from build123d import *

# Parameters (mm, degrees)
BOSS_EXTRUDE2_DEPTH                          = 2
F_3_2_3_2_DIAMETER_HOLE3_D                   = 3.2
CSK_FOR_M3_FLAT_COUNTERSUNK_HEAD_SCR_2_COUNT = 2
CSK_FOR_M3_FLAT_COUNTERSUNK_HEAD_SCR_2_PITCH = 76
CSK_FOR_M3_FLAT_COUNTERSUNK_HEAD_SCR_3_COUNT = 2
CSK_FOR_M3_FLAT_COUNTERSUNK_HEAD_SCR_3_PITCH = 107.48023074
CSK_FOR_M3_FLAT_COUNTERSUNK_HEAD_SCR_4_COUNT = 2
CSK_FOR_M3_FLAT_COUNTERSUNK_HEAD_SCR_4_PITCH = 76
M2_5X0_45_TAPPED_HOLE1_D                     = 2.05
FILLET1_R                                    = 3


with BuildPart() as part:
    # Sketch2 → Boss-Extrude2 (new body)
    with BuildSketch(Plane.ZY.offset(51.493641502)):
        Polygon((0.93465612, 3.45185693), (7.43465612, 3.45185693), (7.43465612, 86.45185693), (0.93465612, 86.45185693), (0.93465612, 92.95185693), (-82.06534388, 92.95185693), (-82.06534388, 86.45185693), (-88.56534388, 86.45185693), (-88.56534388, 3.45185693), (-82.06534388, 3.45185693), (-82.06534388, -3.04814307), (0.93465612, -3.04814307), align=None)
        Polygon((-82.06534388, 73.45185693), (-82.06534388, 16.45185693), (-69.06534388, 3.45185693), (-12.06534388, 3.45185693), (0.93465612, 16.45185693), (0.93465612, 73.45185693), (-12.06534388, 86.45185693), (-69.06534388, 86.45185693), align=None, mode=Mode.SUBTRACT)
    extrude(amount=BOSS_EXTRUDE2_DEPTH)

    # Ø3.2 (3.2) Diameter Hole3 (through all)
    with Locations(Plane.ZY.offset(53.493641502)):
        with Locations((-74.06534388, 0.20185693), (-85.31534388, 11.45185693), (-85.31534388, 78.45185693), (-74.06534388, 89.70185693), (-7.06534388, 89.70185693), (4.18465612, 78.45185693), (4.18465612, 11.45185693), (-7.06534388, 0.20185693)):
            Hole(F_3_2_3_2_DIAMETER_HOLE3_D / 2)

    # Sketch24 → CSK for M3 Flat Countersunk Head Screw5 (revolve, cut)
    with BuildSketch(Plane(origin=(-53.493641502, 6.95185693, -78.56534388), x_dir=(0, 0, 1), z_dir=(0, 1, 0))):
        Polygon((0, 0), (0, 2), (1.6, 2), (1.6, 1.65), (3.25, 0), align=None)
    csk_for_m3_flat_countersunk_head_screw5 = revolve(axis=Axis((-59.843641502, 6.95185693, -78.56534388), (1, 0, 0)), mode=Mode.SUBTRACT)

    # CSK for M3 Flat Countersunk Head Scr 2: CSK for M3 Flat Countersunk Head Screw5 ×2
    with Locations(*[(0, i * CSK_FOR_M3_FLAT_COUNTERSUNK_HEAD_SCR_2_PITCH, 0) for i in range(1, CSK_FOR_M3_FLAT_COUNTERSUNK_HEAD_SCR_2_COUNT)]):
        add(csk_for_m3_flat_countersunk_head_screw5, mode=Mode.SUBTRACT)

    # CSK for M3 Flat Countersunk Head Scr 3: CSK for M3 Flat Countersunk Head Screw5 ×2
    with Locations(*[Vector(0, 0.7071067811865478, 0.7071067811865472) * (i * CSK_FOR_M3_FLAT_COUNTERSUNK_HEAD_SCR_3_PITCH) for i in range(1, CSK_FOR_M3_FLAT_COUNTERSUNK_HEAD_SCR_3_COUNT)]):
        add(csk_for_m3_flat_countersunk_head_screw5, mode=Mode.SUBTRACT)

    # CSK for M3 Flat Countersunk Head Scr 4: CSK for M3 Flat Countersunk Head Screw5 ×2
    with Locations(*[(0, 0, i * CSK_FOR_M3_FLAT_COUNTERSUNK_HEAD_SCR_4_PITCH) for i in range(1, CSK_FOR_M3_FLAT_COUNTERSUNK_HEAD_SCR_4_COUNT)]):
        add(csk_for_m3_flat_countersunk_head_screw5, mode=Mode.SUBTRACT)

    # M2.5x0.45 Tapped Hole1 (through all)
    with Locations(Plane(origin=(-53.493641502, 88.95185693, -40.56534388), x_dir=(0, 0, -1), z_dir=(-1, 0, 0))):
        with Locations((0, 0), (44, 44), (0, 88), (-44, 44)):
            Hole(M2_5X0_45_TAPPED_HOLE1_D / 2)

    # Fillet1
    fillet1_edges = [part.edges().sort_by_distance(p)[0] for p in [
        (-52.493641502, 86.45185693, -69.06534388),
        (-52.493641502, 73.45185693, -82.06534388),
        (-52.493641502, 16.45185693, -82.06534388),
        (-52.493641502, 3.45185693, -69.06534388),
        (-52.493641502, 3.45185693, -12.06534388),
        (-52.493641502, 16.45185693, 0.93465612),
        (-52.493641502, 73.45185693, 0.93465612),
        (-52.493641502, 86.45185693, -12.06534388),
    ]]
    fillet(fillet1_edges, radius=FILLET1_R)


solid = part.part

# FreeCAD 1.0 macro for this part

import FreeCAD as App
import Part
import Sketcher
from FreeCAD import Vector
Q = App.Units.Quantity


def edges_at(feature, points):
    """Names of the edges that pass closest to the given points."""
    edges = feature.Shape.Edges
    near = lambda p: min(range(len(edges)), key=lambda i: edges[i].distToShape(Part.Vertex(*p))[0])
    return sorted({f"Edge{near(p) + 1}" for p in points})

doc = App.newDocument("Part")
body = doc.addObject("PartDesign::Body", "Body")

# Sketch on YZ plane
sketch1 = doc.addObject("Sketcher::SketchObject", "Sketch")
body.addObject(sketch1)
sketch1.AttachmentSupport = (doc.YZ_Plane, [""])
sketch1.MapMode = "FlatFace"
sketch1.AttachmentOffset = App.Placement(Vector(0, 0, -51.493642), App.Rotation())
sketch1.addGeometry([
    Part.LineSegment(Vector(3, 1, 0), Vector(3, 7, 0)),  # 0
    Part.LineSegment(Vector(3, 7, 0), Vector(86, 7, 0)),  # 1
    Part.LineSegment(Vector(86, 7, 0), Vector(86, 1, 0)),  # 2
    Part.LineSegment(Vector(86, 1, 0), Vector(93, 1, 0)),  # 3
    Part.LineSegment(Vector(93, 1, 0), Vector(93, -82, 0)),  # 4
    Part.LineSegment(Vector(93, -82, 0), Vector(86, -82, 0)),  # 5
    Part.LineSegment(Vector(86, -82, 0), Vector(86, -89, 0)),  # 6
    Part.LineSegment(Vector(86, -89, 0), Vector(3, -89, 0)),  # 7
    Part.LineSegment(Vector(3, -89, 0), Vector(3, -82, 0)),  # 8
    Part.LineSegment(Vector(3, -82, 0), Vector(-3, -82, 0)),  # 9
    Part.LineSegment(Vector(-3, -82, 0), Vector(-3, 1, 0)),  # 10
    Part.LineSegment(Vector(-3, 1, 0), Vector(3, 1, 0)),  # 11
    Part.LineSegment(Vector(16, -82, 0), Vector(73, -82, 0)),  # 12
    Part.LineSegment(Vector(73, -82, 0), Vector(86, -69, 0)),  # 13
    Part.LineSegment(Vector(86, -69, 0), Vector(86, -12, 0)),  # 14
    Part.LineSegment(Vector(86, -12, 0), Vector(73, 1, 0)),  # 15
    Part.LineSegment(Vector(73, 1, 0), Vector(16, 1, 0)),  # 16
    Part.LineSegment(Vector(16, 1, 0), Vector(3, -12, 0)),  # 17
    Part.LineSegment(Vector(3, -12, 0), Vector(3, -69, 0)),  # 18
    Part.LineSegment(Vector(3, -69, 0), Vector(16, -82, 0)),  # 19
], False)
sketch1.addConstraint([
    Sketcher.Constraint("Coincident", 0, 2, 1, 1),
    Sketcher.Constraint("Coincident", 1, 2, 2, 1),
    Sketcher.Constraint("Coincident", 2, 2, 3, 1),
    Sketcher.Constraint("Coincident", 3, 2, 4, 1),
    Sketcher.Constraint("Coincident", 4, 2, 5, 1),
    Sketcher.Constraint("Coincident", 5, 2, 6, 1),
    Sketcher.Constraint("Coincident", 6, 2, 7, 1),
    Sketcher.Constraint("Coincident", 7, 2, 8, 1),
    Sketcher.Constraint("Coincident", 8, 2, 9, 1),
    Sketcher.Constraint("Coincident", 9, 2, 10, 1),
    Sketcher.Constraint("Coincident", 10, 2, 11, 1),
    Sketcher.Constraint("Coincident", 11, 2, 0, 1),
    Sketcher.Constraint("Coincident", 12, 2, 13, 1),
    Sketcher.Constraint("Coincident", 13, 2, 14, 1),
    Sketcher.Constraint("Coincident", 14, 2, 15, 1),
    Sketcher.Constraint("Coincident", 15, 2, 16, 1),
    Sketcher.Constraint("Coincident", 16, 2, 17, 1),
    Sketcher.Constraint("Coincident", 17, 2, 18, 1),
    Sketcher.Constraint("Coincident", 18, 2, 19, 1),
    Sketcher.Constraint("Coincident", 19, 2, 12, 1),
    Sketcher.Constraint("Vertical", 0),
    Sketcher.Constraint("Horizontal", 1),
    Sketcher.Constraint("Vertical", 2),
    Sketcher.Constraint("Horizontal", 3),
    Sketcher.Constraint("Vertical", 4),
    Sketcher.Constraint("Horizontal", 5),
    Sketcher.Constraint("Vertical", 6),
    Sketcher.Constraint("Horizontal", 7),
    Sketcher.Constraint("Vertical", 8),
    Sketcher.Constraint("Horizontal", 9),
    Sketcher.Constraint("Vertical", 10),
    Sketcher.Constraint("Horizontal", 11),
    Sketcher.Constraint("Horizontal", 12),
    Sketcher.Constraint("Vertical", 14),
    Sketcher.Constraint("Horizontal", 16),
    Sketcher.Constraint("Vertical", 18),
    Sketcher.Constraint("Perpendicular", 13, 15),
    Sketcher.Constraint("Perpendicular", 15, 17),
    Sketcher.Constraint("Perpendicular", 17, 19),
    Sketcher.Constraint("Horizontal", 5, 2, 8, 2),
    Sketcher.Constraint("Horizontal", 3, 2, 10, 2),
    Sketcher.Constraint("Horizontal", 9, 2, 12, 2),
    Sketcher.Constraint("Horizontal", 11, 2, 15, 2),
    Sketcher.Constraint("Horizontal", 14, 2, 17, 2),
    Sketcher.Constraint("Horizontal", 13, 2, 18, 2),
    Sketcher.Constraint("Vertical", 2, 2, 5, 2),
    Sketcher.Constraint("Vertical", 0, 2, 7, 2),
    Sketcher.Constraint("Vertical", 6, 2, 13, 2),
    Sketcher.Constraint("Vertical", 12, 2, 15, 2),
    Sketcher.Constraint("Vertical", 11, 2, 17, 2),
    Sketcher.Constraint("Vertical", 16, 2, 19, 2),
    Sketcher.Constraint("Equal", 5, 9),
    Sketcher.Constraint("Equal", 11, 0),
    Sketcher.Constraint("Equal", 7, 4),
    Sketcher.Constraint("Equal", 2, 6),
    Sketcher.Constraint("DistanceX", 1, 1, 1, 2, 83.0),
    Sketcher.Constraint("DistanceX", 12, 1, 12, 2, 57.0),
    Sketcher.Constraint("DistanceX", 3, 1, 3, 2, 6.5),
    Sketcher.Constraint("DistanceX", -1, 1, 0, 2, 3.451857),
    Sketcher.Constraint("DistanceY", -1, 1, 0, 2, 7.434656),
])
pad1 = doc.addObject("PartDesign::Pad", "Pad")
body.addObject(pad1)
pad1.Profile = sketch1
pad1.Length = 2
pad1.Reversed = True

# Sketch on YZ plane
sketch2 = doc.addObject("Sketcher::SketchObject", "Sketch001")
body.addObject(sketch2)
sketch2.AttachmentSupport = (doc.YZ_Plane, [""])
sketch2.MapMode = "FlatFace"
sketch2.AttachmentOffset = App.Placement(Vector(0, 0, -53.493642), App.Rotation())
sketch2.addGeometry([
    Part.Circle(Vector(0.2, -74.1, 0), Vector(0, 0, 1), 1.6),  # 0
    Part.Circle(Vector(11.5, -85.3, 0), Vector(0, 0, 1), 1.6),  # 1
    Part.Circle(Vector(78.5, -85.3, 0), Vector(0, 0, 1), 1.6),  # 2
    Part.Circle(Vector(89.7, -74.1, 0), Vector(0, 0, 1), 1.6),  # 3
    Part.Circle(Vector(89.7, -7.1, 0), Vector(0, 0, 1), 1.6),  # 4
    Part.Circle(Vector(78.5, 4.2, 0), Vector(0, 0, 1), 1.6),  # 5
    Part.Circle(Vector(11.5, 4.2, 0), Vector(0, 0, 1), 1.6),  # 6
    Part.Circle(Vector(0.2, -7.1, 0), Vector(0, 0, 1), 1.6),  # 7
], False)
sketch2.addConstraint([
    Sketcher.Constraint("Equal", 0, 1),
    Sketcher.Constraint("Equal", 1, 2),
    Sketcher.Constraint("Equal", 2, 3),
    Sketcher.Constraint("Equal", 3, 4),
    Sketcher.Constraint("Equal", 4, 5),
    Sketcher.Constraint("Equal", 5, 6),
    Sketcher.Constraint("Equal", 6, 7),
    Sketcher.Constraint("Horizontal", 1, 3, 2, 3),
    Sketcher.Constraint("Horizontal", 0, 3, 3, 3),
    Sketcher.Constraint("Horizontal", 5, 3, 6, 3),
    Sketcher.Constraint("Horizontal", 4, 3, 7, 3),
    Sketcher.Constraint("Vertical", 3, 3, 4, 3),
    Sketcher.Constraint("Vertical", 2, 3, 5, 3),
    Sketcher.Constraint("Vertical", 1, 3, 6, 3),
    Sketcher.Constraint("Vertical", 0, 3, 7, 3),
    Sketcher.Constraint("Diameter", 0, 3.2),
    Sketcher.Constraint("DistanceX", 1, 3, 2, 3, 67.0),
    Sketcher.Constraint("DistanceY", 3, 3, 4, 3, 67.0),
    Sketcher.Constraint("DistanceX", 0, 3, 3, 3, 89.5),
    Sketcher.Constraint("DistanceY", 2, 3, 5, 3, 89.5),
    Sketcher.Constraint("DistanceX", 0, 3, 1, 3, 11.25),
    Sketcher.Constraint("DistanceY", 1, 3, 0, 3, 11.25),
    Sketcher.Constraint("DistanceX", -1, 1, 0, 3, 0.201857),
    Sketcher.Constraint("DistanceY", 0, 3, -1, 1, 74.065344),
])
doc.recompute()
hole = doc.addObject("PartDesign::Hole", "Hole")
body.addObject(hole)
hole.Profile = sketch2
hole.ThreadType = "None"
hole.Diameter = 3.2
hole.DepthType = "ThroughAll"
hole.Reversed = True

# Sketch on XZ plane
sketch3 = doc.addObject("Sketcher::SketchObject", "Sketch002")
body.addObject(sketch3)
sketch3.AttachmentSupport = (doc.XZ_Plane, [""])
sketch3.MapMode = "FlatFace"
sketch3.AttachmentOffset = App.Placement(Vector(0, 0, -6.951857), App.Rotation())
sketch3.addGeometry([
    Part.LineSegment(Vector(-51.49, -78.57, 0), Vector(-53.49, -78.57, 0)),  # 0
    Part.LineSegment(Vector(-53.49, -78.57, 0), Vector(-53.49, -75.32, 0)),  # 1
    Part.LineSegment(Vector(-53.49, -75.32, 0), Vector(-51.84, -76.97, 0)),  # 2
    Part.LineSegment(Vector(-51.84, -76.97, 0), Vector(-51.49, -76.97, 0)),  # 3
    Part.LineSegment(Vector(-51.49, -76.97, 0), Vector(-51.49, -78.57, 0)),  # 4
], False)
sketch3.addGeometry(Part.LineSegment(Vector(-53.49, -78.57, 0), Vector(-51.49, -78.57, 0)), True)  # axis
sketch3.addConstraint([
    Sketcher.Constraint("Coincident", 0, 2, 1, 1),
    Sketcher.Constraint("Coincident", 1, 2, 2, 1),
    Sketcher.Constraint("Coincident", 2, 2, 3, 1),
    Sketcher.Constraint("Coincident", 3, 2, 4, 1),
    Sketcher.Constraint("Coincident", 4, 2, 0, 1),
    Sketcher.Constraint("Horizontal", 0),
    Sketcher.Constraint("Vertical", 1),
    Sketcher.Constraint("Horizontal", 3),
    Sketcher.Constraint("Vertical", 4),
    Sketcher.Constraint("Horizontal", 5),
    Sketcher.Constraint("Coincident", 5, 1, 0, 2),
    Sketcher.Constraint("Vertical", 3, 2, 5, 2),
    Sketcher.Constraint("DistanceX", 0, 2, 0, 1, 2.0),
    Sketcher.Constraint("Angle", 2, Q("-45 deg")),
    Sketcher.Constraint("DistanceY", 4, 2, 4, 1, 1.6),
    Sketcher.Constraint("DistanceX", 3, 1, 3, 2, 0.35),
    Sketcher.Constraint("DistanceX", 0, 2, -1, 1, 53.493642),
    Sketcher.Constraint("DistanceY", 0, 2, -1, 1, 78.565344),
])
groove = doc.addObject("PartDesign::Groove", "Groove")
body.addObject(groove)
groove.Profile = sketch3
groove.ReferenceAxis = (sketch3, ["Axis0"])
groove.Angle = 360
doc.recompute()

linearpattern = doc.addObject("PartDesign::LinearPattern", "LinearPattern")
body.addObject(linearpattern)
linearpattern.Originals = [groove]
linearpattern.Direction = (doc.Y_Axis, [""])
linearpattern.Mode = "offset"
linearpattern.Offset = 76
linearpattern.Occurrences = 2
body.Tip = linearpattern
doc.recompute()

datumline = doc.addObject("PartDesign::Line", "DatumLine")
body.addObject(datumline)
datumline.Placement = App.Placement(Vector(0, 0, 0), App.Rotation(Vector(0, 0, 1), Vector(0, 0.707106781, 0.707106781)))
linearpattern2 = doc.addObject("PartDesign::LinearPattern", "LinearPattern001")
body.addObject(linearpattern2)
linearpattern2.Originals = [groove]
linearpattern2.Direction = (datumline, [""])
linearpattern2.Mode = "offset"
linearpattern2.Offset = 107.480231
linearpattern2.Occurrences = 2
body.Tip = linearpattern2
doc.recompute()

linearpattern3 = doc.addObject("PartDesign::LinearPattern", "LinearPattern002")
body.addObject(linearpattern3)
linearpattern3.Originals = [groove]
linearpattern3.Direction = (doc.Z_Axis, [""])
linearpattern3.Mode = "offset"
linearpattern3.Offset = 76
linearpattern3.Occurrences = 2
body.Tip = linearpattern3

# Sketch on YZ plane
sketch4 = doc.addObject("Sketcher::SketchObject", "Sketch003")
body.addObject(sketch4)
sketch4.AttachmentSupport = (doc.YZ_Plane, [""])
sketch4.MapMode = "FlatFace"
sketch4.AttachmentOffset = App.Placement(Vector(0, 0, -53.493642), App.Rotation())
sketch4.addGeometry([
    Part.Circle(Vector(89, -40.6, 0), Vector(0, 0, 1), 1),
    Part.Circle(Vector(45, -84.6, 0), Vector(0, 0, 1), 1),
    Part.Circle(Vector(1, -40.6, 0), Vector(0, 0, 1), 1),
    Part.Circle(Vector(45, 3.4, 0), Vector(0, 0, 1), 1),
], False)
sketch4.addConstraint([
    Sketcher.Constraint("Equal", 0, 1),
    Sketcher.Constraint("Equal", 1, 2),
    Sketcher.Constraint("Equal", 2, 3),
    Sketcher.Constraint("Horizontal", 0, 3, 2, 3),
    Sketcher.Constraint("Vertical", 1, 3, 3, 3),
    Sketcher.Constraint("Diameter", 0, 2.05),
    Sketcher.Constraint("DistanceX", 1, 3, 0, 3, 44.0),
    Sketcher.Constraint("DistanceY", 1, 3, 0, 3, 44.0),
    Sketcher.Constraint("DistanceX", 2, 3, 1, 3, 44.0),
    Sketcher.Constraint("DistanceY", 2, 3, 3, 3, 44.0),
    Sketcher.Constraint("DistanceX", -1, 1, 0, 3, 88.951857),
    Sketcher.Constraint("DistanceY", 0, 3, -1, 1, 40.565344),
])
doc.recompute()
hole2 = doc.addObject("PartDesign::Hole", "Hole001")
body.addObject(hole2)
hole2.Profile = sketch4
hole2.ThreadType = "None"
hole2.Diameter = 2.05
hole2.DepthType = "ThroughAll"
hole2.Reversed = True
doc.recompute()

fillet = doc.addObject("PartDesign::Fillet", "Fillet")
body.addObject(fillet)
fillet.Base = (hole2, edges_at(hole2, [
    (-52.494, 86.452, -69.065),
    (-52.494, 73.452, -82.065),
    (-52.494, 16.452, -82.065),
    (-52.494, 3.452, -69.065),
    (-52.494, 3.452, -12.065),
    (-52.494, 16.452, 0.935),
    (-52.494, 73.452, 0.935),
    (-52.494, 86.452, -12.065),
]))
fillet.Radius = 3

doc.recompute()
